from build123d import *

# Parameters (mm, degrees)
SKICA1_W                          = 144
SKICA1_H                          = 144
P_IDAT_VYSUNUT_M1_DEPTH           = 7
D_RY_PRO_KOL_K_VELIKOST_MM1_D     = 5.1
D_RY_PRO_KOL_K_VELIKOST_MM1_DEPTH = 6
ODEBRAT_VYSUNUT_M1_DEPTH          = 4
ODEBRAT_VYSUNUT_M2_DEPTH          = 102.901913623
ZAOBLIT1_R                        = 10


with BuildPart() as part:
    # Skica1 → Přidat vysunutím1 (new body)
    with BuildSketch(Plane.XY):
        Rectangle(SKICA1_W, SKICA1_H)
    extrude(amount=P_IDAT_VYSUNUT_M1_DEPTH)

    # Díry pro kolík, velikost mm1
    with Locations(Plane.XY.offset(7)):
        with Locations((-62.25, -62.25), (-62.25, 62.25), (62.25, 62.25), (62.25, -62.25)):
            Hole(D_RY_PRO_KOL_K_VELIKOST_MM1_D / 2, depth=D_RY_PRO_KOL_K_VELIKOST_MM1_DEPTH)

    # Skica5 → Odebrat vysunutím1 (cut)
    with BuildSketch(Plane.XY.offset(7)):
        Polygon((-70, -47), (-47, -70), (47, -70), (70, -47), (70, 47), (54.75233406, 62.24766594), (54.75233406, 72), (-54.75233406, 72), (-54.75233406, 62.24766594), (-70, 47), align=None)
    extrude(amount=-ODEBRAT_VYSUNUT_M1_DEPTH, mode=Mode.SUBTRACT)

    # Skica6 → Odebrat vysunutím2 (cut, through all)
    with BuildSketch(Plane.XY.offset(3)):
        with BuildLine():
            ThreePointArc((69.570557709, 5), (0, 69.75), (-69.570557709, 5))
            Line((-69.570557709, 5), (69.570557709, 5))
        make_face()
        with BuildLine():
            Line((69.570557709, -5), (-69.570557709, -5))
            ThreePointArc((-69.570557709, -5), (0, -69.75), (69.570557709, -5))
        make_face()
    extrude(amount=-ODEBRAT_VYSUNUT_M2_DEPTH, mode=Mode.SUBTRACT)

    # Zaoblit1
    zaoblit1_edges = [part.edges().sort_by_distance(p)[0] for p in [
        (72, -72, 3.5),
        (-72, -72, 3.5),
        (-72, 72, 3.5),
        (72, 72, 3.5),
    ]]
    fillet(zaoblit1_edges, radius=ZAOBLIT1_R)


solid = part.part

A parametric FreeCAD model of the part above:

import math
import FreeCAD as App
import Part
import Sketcher


def edges_at(feature, points):
    """Names of the edges that pass closest to the given points."""
    edges = feature.Shape.Edges
    near = lambda p: min(range(len(edges)), key=lambda i: edges[i].distToShape(Part.Vertex(*p))[0])
    return sorted({f"Edge{near(p) + 1}" for p in points})

doc = App.newDocument("Part")
body = doc.addObject("PartDesign::Body", "Body")

sketch1 = body.newObject("Sketcher::SketchObject", "Sketch")
sketch1.AttachmentSupport = (doc.getObject("XY_Plane"), [""])
sketch1.MapMode = "FlatFace"
sketch1.addGeometry([
    Part.LineSegment(App.Vector(-72, 72, 0), App.Vector(-72, -72, 0)),
    Part.LineSegment(App.Vector(-72, -72, 0), App.Vector(72, -72, 0)),
    Part.LineSegment(App.Vector(72, -72, 0), App.Vector(72, 72, 0)),
    Part.LineSegment(App.Vector(72, 72, 0), App.Vector(-72, 72, 0)),
], False)
sketch1.addConstraint([
    Sketcher.Constraint("Coincident", 0, 2, 1, 1),
    Sketcher.Constraint("Coincident", 1, 2, 2, 1),
    Sketcher.Constraint("Coincident", 2, 2, 3, 1),
    Sketcher.Constraint("Coincident", 3, 2, 0, 1),
    Sketcher.Constraint("Vertical", 0),
    Sketcher.Constraint("Horizontal", 1),
    Sketcher.Constraint("Vertical", 2),
    Sketcher.Constraint("Horizontal", 3),
    Sketcher.Constraint("Symmetric", 0, 2, 2, 2, -1, 1),
    Sketcher.Constraint("Equal", 3, 0),
    Sketcher.Constraint("DistanceX", 1, 1, 1, 2, 144.0),
])
pad1 = body.newObject("PartDesign::Pad", "Pad")
pad1.Profile = sketch1
pad1.Length = 7

sketch2 = body.newObject("Sketcher::SketchObject", "Sketch001")
sketch2.AttachmentSupport = (doc.getObject("XY_Plane"), [""])
sketch2.MapMode = "FlatFace"
sketch2.AttachmentOffset = App.Placement(App.Vector(0, 0, 7), App.Rotation())
sketch2.addGeometry([
    Part.Circle(App.Vector(-62.25, -62.25, 0), App.Vector(0, 0, 1), 2.55),
    Part.Circle(App.Vector(-62.25, 62.25, 0), App.Vector(0, 0, 1), 2.55),
    Part.Circle(App.Vector(62.25, 62.25, 0), App.Vector(0, 0, 1), 2.55),
    Part.Circle(App.Vector(62.25, -62.25, 0), App.Vector(0, 0, 1), 2.55),
], False)
sketch2.addConstraint([
    Sketcher.Constraint("Equal", 0, 1),
    Sketcher.Constraint("Equal", 1, 2),
    Sketcher.Constraint("Equal", 2, 3),
    Sketcher.Constraint("Symmetric", 0, 3, 2, 3, -1, 1),
    Sketcher.Constraint("Symmetric", 1, 3, 3, 3, -1, 1),
    Sketcher.Constraint("Symmetric", 1, 3, 2, 3, -2),
    Sketcher.Constraint("Diameter", 0, 5.1),
    Sketcher.Constraint("DistanceY", 0, 3, 1, 3, 124.5),
    Sketcher.Constraint("DistanceX", 1, 3, 2, 3, 124.5),
])
doc.recompute()
hole = body.newObject("PartDesign::Hole", "Hole")
hole.Profile = sketch2
hole.ThreadType = "None"
hole.Diameter = 5.1
hole.DepthType = "Dimension"
hole.Depth = 6
hole.DrillPoint = "Flat"

sketch3 = body.newObject("Sketcher::SketchObject", "Sketch002")
sketch3.AttachmentSupport = (doc.getObject("XY_Plane"), [""])
sketch3.MapMode = "FlatFace"
sketch3.AttachmentOffset = App.Placement(App.Vector(0, 0, 7), App.Rotation())
sketch3.addGeometry([
    Part.LineSegment(App.Vector(-70, -47, 0), App.Vector(-47, -70, 0)),
    Part.LineSegment(App.Vector(-47, -70, 0), App.Vector(47, -70, 0)),
    Part.LineSegment(App.Vector(47, -70, 0), App.Vector(70, -47, 0)),
    Part.LineSegment(App.Vector(70, -47, 0), App.Vector(70, 47, 0)),
    Part.LineSegment(App.Vector(70, 47, 0), App.Vector(54.752334, 62.247666, 0)),
    Part.LineSegment(App.Vector(54.752334, 62.247666, 0), App.Vector(54.752334, 72, 0)),
    Part.LineSegment(App.Vector(54.752334, 72, 0), App.Vector(-54.752334, 72, 0)),
    Part.LineSegment(App.Vector(-54.752334, 72, 0), App.Vector(-54.752334, 62.247666, 0)),
    Part.LineSegment(App.Vector(-54.752334, 62.247666, 0), App.Vector(-70, 47, 0)),
    Part.LineSegment(App.Vector(-70, 47, 0), App.Vector(-70, -47, 0)),
], False)
sketch3.addConstraint([
    Sketcher.Constraint("Coincident", 0, 2, 1, 1),
    Sketcher.Constraint("Coincident", 1, 2, 2, 1),
    Sketcher.Constraint("Coincident", 2, 2, 3, 1),
    Sketcher.Constraint("Coincident", 3, 2, 4, 1),
    Sketcher.Constraint("Coincident", 4, 2, 5, 1),
    Sketcher.Constraint("Coincident", 5, 2, 6, 1),
    Sketcher.Constraint("Coincident", 6, 2, 7, 1),
    Sketcher.Constraint("Coincident", 7, 2, 8, 1),
    Sketcher.Constraint("Coincident", 8, 2, 9, 1),
    Sketcher.Constraint("Coincident", 9, 2, 0, 1),
    Sketcher.Constraint("Horizontal", 1),
    Sketcher.Constraint("Vertical", 3),
    Sketcher.Constraint("Vertical", 5),
    Sketcher.Constraint("Horizontal", 6),
    Sketcher.Constraint("Vertical", 7),
    Sketcher.Constraint("Vertical", 9),
    Sketcher.Constraint("Symmetric", 2, 2, 8, 2, -1, 1),
    Sketcher.Constraint("Symmetric", 4, 2, 7, 2, -2),
    Sketcher.Constraint("Perpendicular", 0, 2),
    Sketcher.Constraint("Perpendicular", 2, 4),
    Sketcher.Constraint("Perpendicular", 4, 8),
    Sketcher.Constraint("Horizontal", 3, 2, 8, 2),
    Sketcher.Constraint("Horizontal", 2, 2, 9, 2),
    Sketcher.Constraint("Equal", 1, 3),
    Sketcher.Constraint("DistanceX", 1, 1, 1, 2, 94.0),
    Sketcher.Constraint("DistanceY", 0, 2, -1, 1, 70.0),
    Sketcher.Constraint("DistanceY", -1, 1, 5, 2, 72.0),
    Sketcher.Constraint("DistanceX", 6, 2, 6, 1, 109.504668),
])
pocket1 = body.newObject("PartDesign::Pocket", "Pocket")
pocket1.Profile = sketch3
pocket1.Length = 4

sketch4 = body.newObject("Sketcher::SketchObject", "Sketch003")
sketch4.AttachmentSupport = (doc.getObject("XY_Plane"), [""])
sketch4.MapMode = "FlatFace"
sketch4.AttachmentOffset = App.Placement(App.Vector(0, 0, 3), App.Rotation())
sketch4.addGeometry([
    Part.ArcOfCircle(Part.Circle(App.Vector(0, 0, 0), App.Vector(0, 0, 1), 69.75), math.radians(4.11075), math.radians(175.88925)),
    Part.LineSegment(App.Vector(-69.570558, 5, 0), App.Vector(69.570558, 5, 0)),
    Part.LineSegment(App.Vector(69.570558, -5, 0), App.Vector(-69.570558, -5, 0)),
    Part.ArcOfCircle(Part.Circle(App.Vector(0, 0, 0), App.Vector(0, 0, 1), 69.75), math.radians(-175.88925), math.radians(-4.11075)),
], False)
sketch4.addConstraint([
    Sketcher.Constraint("Coincident", 0, 1, 1, 2),
    Sketcher.Constraint("Coincident", 1, 1, 0, 2),
    Sketcher.Constraint("Coincident", 2, 1, 3, 2),
    Sketcher.Constraint("Coincident", 3, 1, 2, 2),
    Sketcher.Constraint("Horizontal", 1),
    Sketcher.Constraint("Horizontal", 2),
    Sketcher.Constraint("Coincident", 0, 3, -1, 1),
    Sketcher.Constraint("Coincident", 3, 3, -1, 1),
    Sketcher.Constraint("Equal", 0, 3),
    Sketcher.Constraint("Vertical", 0, 1, 2, 1),
    Sketcher.Constraint("Radius", 0, 69.75),
    Sketcher.Constraint("DistanceY", -1, 1, 0, 1, 5.0),
])
pocket2 = body.newObject("PartDesign::Pocket", "Pocket001")
pocket2.Profile = sketch4
pocket2.Type = "ThroughAll"
doc.recompute()

fillet = body.newObject("PartDesign::Fillet", "Fillet")
fillet.Base = (pocket2, edges_at(pocket2, [
    (72, -72, 3.5),
    (-72, -72, 3.5),
    (-72, 72, 3.5),
    (72, 72, 3.5),
]))
fillet.Radius = 10

doc.recompute()
